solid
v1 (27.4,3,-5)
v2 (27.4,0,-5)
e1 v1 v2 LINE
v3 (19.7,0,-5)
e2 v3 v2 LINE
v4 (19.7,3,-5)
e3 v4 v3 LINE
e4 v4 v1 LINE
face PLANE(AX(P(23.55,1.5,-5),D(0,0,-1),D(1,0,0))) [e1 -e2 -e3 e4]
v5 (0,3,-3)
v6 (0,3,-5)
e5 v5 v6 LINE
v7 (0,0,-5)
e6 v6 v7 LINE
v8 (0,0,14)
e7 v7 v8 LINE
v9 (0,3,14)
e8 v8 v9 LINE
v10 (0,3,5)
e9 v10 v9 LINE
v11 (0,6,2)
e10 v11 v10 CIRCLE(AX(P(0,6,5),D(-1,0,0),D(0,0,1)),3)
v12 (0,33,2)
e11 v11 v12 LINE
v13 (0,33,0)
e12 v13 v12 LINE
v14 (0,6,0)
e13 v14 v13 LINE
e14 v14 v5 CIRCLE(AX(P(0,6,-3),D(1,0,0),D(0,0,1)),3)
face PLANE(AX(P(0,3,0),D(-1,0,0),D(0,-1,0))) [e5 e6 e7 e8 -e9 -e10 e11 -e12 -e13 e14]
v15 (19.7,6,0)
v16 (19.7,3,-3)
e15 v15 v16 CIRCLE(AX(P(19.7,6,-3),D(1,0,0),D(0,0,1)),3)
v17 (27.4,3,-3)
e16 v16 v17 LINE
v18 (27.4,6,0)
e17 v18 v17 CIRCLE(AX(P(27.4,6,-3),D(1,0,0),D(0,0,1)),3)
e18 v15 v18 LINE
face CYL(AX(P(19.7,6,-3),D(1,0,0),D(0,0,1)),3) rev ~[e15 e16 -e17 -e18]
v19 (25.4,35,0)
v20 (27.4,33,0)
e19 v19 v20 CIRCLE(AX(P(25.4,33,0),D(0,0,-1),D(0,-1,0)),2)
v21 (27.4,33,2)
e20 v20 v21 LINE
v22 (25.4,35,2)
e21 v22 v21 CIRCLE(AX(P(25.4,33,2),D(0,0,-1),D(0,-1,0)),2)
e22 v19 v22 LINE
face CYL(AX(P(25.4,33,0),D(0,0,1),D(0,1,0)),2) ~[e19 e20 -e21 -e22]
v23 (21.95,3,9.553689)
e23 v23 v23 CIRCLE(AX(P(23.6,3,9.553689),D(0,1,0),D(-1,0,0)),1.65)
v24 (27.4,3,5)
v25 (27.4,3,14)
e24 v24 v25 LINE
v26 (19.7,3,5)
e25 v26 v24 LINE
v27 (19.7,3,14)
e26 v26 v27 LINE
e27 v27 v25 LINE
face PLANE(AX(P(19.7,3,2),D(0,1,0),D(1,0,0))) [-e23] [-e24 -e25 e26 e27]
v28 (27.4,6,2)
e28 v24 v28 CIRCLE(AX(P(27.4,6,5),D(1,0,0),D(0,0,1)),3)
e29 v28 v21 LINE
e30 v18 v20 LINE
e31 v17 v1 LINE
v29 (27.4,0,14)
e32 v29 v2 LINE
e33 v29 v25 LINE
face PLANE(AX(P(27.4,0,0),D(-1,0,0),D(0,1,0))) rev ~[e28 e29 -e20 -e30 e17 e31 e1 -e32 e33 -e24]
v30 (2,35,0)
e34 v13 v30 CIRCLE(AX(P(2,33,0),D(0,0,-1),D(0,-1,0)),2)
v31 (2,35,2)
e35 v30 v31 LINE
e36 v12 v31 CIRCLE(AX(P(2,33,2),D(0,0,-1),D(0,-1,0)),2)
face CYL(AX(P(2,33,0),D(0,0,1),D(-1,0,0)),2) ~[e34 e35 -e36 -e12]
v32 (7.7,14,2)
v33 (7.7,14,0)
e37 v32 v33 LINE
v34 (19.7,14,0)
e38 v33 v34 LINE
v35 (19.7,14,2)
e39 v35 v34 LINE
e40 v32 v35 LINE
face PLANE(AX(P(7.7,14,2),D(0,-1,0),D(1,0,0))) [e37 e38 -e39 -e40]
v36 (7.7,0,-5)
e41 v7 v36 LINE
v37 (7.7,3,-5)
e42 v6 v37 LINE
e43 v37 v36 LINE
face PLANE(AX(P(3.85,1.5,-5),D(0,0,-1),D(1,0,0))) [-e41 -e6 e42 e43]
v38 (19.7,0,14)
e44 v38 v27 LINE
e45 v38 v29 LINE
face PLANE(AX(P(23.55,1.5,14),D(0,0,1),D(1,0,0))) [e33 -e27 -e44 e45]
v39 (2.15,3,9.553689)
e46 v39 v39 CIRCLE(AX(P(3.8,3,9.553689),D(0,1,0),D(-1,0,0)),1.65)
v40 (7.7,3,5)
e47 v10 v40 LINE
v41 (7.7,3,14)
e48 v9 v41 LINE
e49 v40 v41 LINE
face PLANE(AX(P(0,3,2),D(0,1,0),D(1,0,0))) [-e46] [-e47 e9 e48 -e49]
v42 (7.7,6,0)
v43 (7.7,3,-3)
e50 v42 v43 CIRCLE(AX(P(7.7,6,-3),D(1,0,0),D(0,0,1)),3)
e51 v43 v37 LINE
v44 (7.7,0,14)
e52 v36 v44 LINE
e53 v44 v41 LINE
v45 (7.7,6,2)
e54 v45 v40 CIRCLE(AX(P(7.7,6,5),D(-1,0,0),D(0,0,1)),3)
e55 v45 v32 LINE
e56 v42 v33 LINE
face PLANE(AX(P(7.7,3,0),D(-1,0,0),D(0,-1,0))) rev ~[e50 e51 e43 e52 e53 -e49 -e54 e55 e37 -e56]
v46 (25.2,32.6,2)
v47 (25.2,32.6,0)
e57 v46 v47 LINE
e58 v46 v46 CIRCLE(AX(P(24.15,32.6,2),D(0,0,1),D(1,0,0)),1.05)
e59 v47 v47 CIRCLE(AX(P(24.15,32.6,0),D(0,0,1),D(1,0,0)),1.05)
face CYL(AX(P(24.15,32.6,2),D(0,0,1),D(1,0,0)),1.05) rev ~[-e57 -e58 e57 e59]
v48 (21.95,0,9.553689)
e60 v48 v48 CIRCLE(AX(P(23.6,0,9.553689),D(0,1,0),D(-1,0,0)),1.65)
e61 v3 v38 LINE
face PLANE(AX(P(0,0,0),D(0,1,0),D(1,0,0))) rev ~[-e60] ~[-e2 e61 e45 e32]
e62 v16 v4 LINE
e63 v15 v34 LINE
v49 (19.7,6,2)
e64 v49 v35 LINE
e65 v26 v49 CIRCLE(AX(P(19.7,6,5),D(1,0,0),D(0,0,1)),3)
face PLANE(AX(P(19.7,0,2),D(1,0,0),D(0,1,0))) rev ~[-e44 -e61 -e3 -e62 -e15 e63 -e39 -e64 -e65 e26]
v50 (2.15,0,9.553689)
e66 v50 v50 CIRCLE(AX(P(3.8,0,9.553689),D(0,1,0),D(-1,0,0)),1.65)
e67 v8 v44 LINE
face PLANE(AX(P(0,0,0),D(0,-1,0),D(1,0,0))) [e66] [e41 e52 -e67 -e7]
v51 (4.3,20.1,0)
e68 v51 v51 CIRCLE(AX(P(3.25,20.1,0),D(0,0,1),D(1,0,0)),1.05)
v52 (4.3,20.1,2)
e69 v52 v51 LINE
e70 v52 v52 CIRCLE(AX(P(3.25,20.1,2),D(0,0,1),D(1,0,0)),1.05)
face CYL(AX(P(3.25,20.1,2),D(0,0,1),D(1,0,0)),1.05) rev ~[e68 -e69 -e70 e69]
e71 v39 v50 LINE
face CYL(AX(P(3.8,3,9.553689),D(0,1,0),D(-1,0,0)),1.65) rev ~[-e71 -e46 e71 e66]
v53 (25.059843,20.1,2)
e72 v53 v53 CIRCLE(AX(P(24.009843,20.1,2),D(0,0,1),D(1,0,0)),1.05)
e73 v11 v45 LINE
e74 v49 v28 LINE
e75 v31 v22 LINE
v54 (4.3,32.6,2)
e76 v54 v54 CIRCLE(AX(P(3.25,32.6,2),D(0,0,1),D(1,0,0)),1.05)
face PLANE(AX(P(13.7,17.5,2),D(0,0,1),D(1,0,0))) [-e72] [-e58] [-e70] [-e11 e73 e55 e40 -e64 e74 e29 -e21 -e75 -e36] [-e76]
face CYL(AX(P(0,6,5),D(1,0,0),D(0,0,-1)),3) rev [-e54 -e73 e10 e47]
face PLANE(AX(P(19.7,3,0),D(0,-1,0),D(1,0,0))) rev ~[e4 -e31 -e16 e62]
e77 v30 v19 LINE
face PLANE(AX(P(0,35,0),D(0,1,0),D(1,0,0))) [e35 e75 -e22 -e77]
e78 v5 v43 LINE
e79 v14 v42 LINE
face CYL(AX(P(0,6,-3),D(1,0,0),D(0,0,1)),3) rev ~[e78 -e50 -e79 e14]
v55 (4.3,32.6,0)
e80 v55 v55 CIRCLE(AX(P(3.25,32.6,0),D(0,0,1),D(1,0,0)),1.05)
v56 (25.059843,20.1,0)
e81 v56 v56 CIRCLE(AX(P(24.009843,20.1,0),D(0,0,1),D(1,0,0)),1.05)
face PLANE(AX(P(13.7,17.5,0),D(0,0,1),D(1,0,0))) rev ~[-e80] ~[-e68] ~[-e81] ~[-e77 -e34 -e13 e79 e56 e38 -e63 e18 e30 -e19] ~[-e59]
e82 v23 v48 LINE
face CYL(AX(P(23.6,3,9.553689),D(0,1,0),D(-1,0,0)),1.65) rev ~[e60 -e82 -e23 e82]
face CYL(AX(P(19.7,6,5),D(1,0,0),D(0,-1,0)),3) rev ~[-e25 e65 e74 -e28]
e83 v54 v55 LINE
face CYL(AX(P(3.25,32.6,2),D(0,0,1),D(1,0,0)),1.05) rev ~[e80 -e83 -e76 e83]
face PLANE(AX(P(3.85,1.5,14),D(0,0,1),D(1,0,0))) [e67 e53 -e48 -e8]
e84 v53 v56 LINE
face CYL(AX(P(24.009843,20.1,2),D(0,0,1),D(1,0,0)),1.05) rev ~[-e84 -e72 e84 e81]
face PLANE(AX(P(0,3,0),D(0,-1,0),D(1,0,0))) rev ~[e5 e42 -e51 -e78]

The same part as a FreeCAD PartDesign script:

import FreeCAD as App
import Part
import Sketcher


def edges_at(feature, points):
    """Names of the edges that pass closest to the given points."""
    edges = feature.Shape.Edges
    near = lambda p: min(range(len(edges)), key=lambda i: edges[i].distToShape(Part.Vertex(*p))[0])
    return sorted({f"Edge{near(p) + 1}" for p in points})

doc = App.newDocument("Part")
params = doc.addObject("Spreadsheet::Sheet", "Params")
for row, (alias, value) in enumerate([
    ("sketch1_height", "35 mm"),
    ("sketch1_width", "27.4 mm"),
    ("pad1_length", "2 mm"),
    ("sketch2_width", "12 mm"),
    ("sketch2_height", "14 mm"),
    ("pocket1_length", "2 mm"),
    ("sketch3_height", "3 mm"),
    ("sketch3_width", "7.7 mm"),
    ("pad2_length", "12 mm"),
    ("fillet_radius", "3 mm"),
    ("sketch4_height", "3 mm"),
    ("sketch4_width", "7.7 mm"),
    ("pad3_length", "5 mm"),
    ("fillet2_radius", "3 mm"),
    ("sketch5_diameter", "2.1 mm"),
    ("pocket2_length", "2 mm"),
    ("sketch6_diameter", "3.3 mm"),
    ("pocket3_length", "3 mm"),
    ("fillet3_radius", "2 mm"),
], start=1):
    params.set(f"A{row}", alias)
    params.set(f"B{row}", "=" + value)
    params.setAlias(f"B{row}", alias)

body = doc.addObject("PartDesign::Body", "Body")

# Sketch on XY plane
sketch1 = body.newObject("Sketcher::SketchObject", "Sketch")
sketch1.AttachmentSupport = (doc.getObject("XY_Plane"), [""])
sketch1.MapMode = "FlatFace"
sketch1.addGeometry(Part.LineSegment(App.Vector(0, 35, 0), App.Vector(0, 0, 0)), False)
sketch1.addGeometry(Part.LineSegment(App.Vector(0, 0, 0), App.Vector(27, 0, 0)), False)
sketch1.addGeometry(Part.LineSegment(App.Vector(27, 0, 0), App.Vector(27, 35, 0)), False)
sketch1.addGeometry(Part.LineSegment(App.Vector(27, 35, 0), App.Vector(0, 35, 0)), False)
sketch1.addConstraint(Sketcher.Constraint("Coincident", 0, 2, 1, 1))
sketch1.addConstraint(Sketcher.Constraint("Coincident", 1, 2, 2, 1))
sketch1.addConstraint(Sketcher.Constraint("Coincident", 2, 2, 3, 1))
sketch1.addConstraint(Sketcher.Constraint("Coincident", 3, 2, 0, 1))
sketch1.addConstraint(Sketcher.Constraint("Vertical", 0))
sketch1.addConstraint(Sketcher.Constraint("Horizontal", 1))
sketch1.addConstraint(Sketcher.Constraint("Vertical", 2))
sketch1.addConstraint(Sketcher.Constraint("Horizontal", 3))
sketch1.addConstraint(Sketcher.Constraint("Coincident", 0, 2, -1, 1))
sketch1.addConstraint(Sketcher.Constraint("DistanceY", 0, 2, 0, 1, 35.0))
sketch1.addConstraint(Sketcher.Constraint("DistanceX", 1, 1, 1, 2, 27.4))
sketch1.setExpression("Constraints[9]", "Params.sketch1_height")
sketch1.setExpression("Constraints[10]", "Params.sketch1_width")
pad1 = body.newObject("PartDesign::Pad", "Pad")
pad1.Profile = sketch1
pad1.setExpression("Length", "Params.pad1_length")

# Sketch on XY plane
sketch2 = body.newObject("Sketcher::SketchObject", "Sketch001")
sketch2.AttachmentSupport = (doc.getObject("XY_Plane"), [""])
sketch2.MapMode = "FlatFace"
sketch2.AttachmentOffset = App.Placement(App.Vector(0, 0, 2), App.Rotation())
sketch2.addGeometry(Part.LineSegment(App.Vector(8, 14, 0), App.Vector(8, 0, 0)), False)
sketch2.addGeometry(Part.LineSegment(App.Vector(8, 0, 0), App.Vector(20, 0, 0)), False)
sketch2.addGeometry(Part.LineSegment(App.Vector(20, 0, 0), App.Vector(20, 14, 0)), False)
sketch2.addGeometry(Part.LineSegment(App.Vector(20, 14, 0), App.Vector(8, 14, 0)), False)
sketch2.addConstraint(Sketcher.Constraint("Coincident", 0, 2, 1, 1))
sketch2.addConstraint(Sketcher.Constraint("Coincident", 1, 2, 2, 1))
sketch2.addConstraint(Sketcher.Constraint("Coincident", 2, 2, 3, 1))
sketch2.addConstraint(Sketcher.Constraint("Coincident", 3, 2, 0, 1))
sketch2.addConstraint(Sketcher.Constraint("Vertical", 0))
sketch2.addConstraint(Sketcher.Constraint("Horizontal", 1))
sketch2.addConstraint(Sketcher.Constraint("Vertical", 2))
sketch2.addConstraint(Sketcher.Constraint("Horizontal", 3))
sketch2.addConstraint(Sketcher.Constraint("PointOnObject", 0, 2, -1))
sketch2.addConstraint(Sketcher.Constraint("DistanceX", 1, 1, 1, 2, 12.0))
sketch2.addConstraint(Sketcher.Constraint("DistanceY", 0, 2, 0, 1, 14.0))
sketch2.addConstraint(Sketcher.Constraint("DistanceX", -1, 1, 0, 2, 7.7))
sketch2.setExpression("Constraints[9]", "Params.sketch2_width")
sketch2.setExpression("Constraints[10]", "Params.sketch2_height")
pocket1 = body.newObject("PartDesign::Pocket", "Pocket")
pocket1.Profile = sketch2
pocket1.setExpression("Length", "Params.pocket1_length")

# Sketch on XY plane
sketch3 = body.newObject("Sketcher::SketchObject", "Sketch002")
sketch3.AttachmentSupport = (doc.getObject("XY_Plane"), [""])
sketch3.MapMode = "FlatFace"
sketch3.AttachmentOffset = App.Placement(App.Vector(0, 0, 2), App.Rotation())
sketch3.addGeometry(Part.LineSegment(App.Vector(0, 3, 0), App.Vector(0, 0, 0)), False)
sketch3.addGeometry(Part.LineSegment(App.Vector(0, 0, 0), App.Vector(7.7, 0, 0)), False)
sketch3.addGeometry(Part.LineSegment(App.Vector(7.7, 0, 0), App.Vector(7.7, 3, 0)), False)
sketch3.addGeometry(Part.LineSegment(App.Vector(7.7, 3, 0), App.Vector(0, 3, 0)), False)
sketch3.addGeometry(Part.LineSegment(App.Vector(19.7, 3, 0), App.Vector(19.7, 0, 0)), False)
sketch3.addGeometry(Part.LineSegment(App.Vector(19.7, 0, 0), App.Vector(27.4, 0, 0)), False)
sketch3.addGeometry(Part.LineSegment(App.Vector(27.4, 0, 0), App.Vector(27.4, 3, 0)), False)
sketch3.addGeometry(Part.LineSegment(App.Vector(27.4, 3, 0), App.Vector(19.7, 3, 0)), False)
sketch3.addConstraint(Sketcher.Constraint("Coincident", 0, 2, 1, 1))
sketch3.addConstraint(Sketcher.Constraint("Coincident", 1, 2, 2, 1))
sketch3.addConstraint(Sketcher.Constraint("Coincident", 2, 2, 3, 1))
sketch3.addConstraint(Sketcher.Constraint("Coincident", 3, 2, 0, 1))
sketch3.addConstraint(Sketcher.Constraint("Coincident", 4, 2, 5, 1))
sketch3.addConstraint(Sketcher.Constraint("Coincident", 5, 2, 6, 1))
sketch3.addConstraint(Sketcher.Constraint("Coincident", 6, 2, 7, 1))
sketch3.addConstraint(Sketcher.Constraint("Coincident", 7, 2, 4, 1))
sketch3.addConstraint(Sketcher.Constraint("Vertical", 0))
sketch3.addConstraint(Sketcher.Constraint("Horizontal", 1))
sketch3.addConstraint(Sketcher.Constraint("Vertical", 2))
sketch3.addConstraint(Sketcher.Constraint("Horizontal", 3))
sketch3.addConstraint(Sketcher.Constraint("Vertical", 4))
sketch3.addConstraint(Sketcher.Constraint("Horizontal", 5))
sketch3.addConstraint(Sketcher.Constraint("Vertical", 6))
sketch3.addConstraint(Sketcher.Constraint("Horizontal", 7))
sketch3.addConstraint(Sketcher.Constraint("Coincident", 0, 2, -1, 1))
sketch3.addConstraint(Sketcher.Constraint("PointOnObject", 4, 2, -1))
sketch3.addConstraint(Sketcher.Constraint("Horizontal", 3, 2, 6, 2))
sketch3.addConstraint(Sketcher.Constraint("Equal", 3, 5))
sketch3.addConstraint(Sketcher.Constraint("DistanceY", 0, 2, 0, 1, 3.0))
sketch3.addConstraint(Sketcher.Constraint("DistanceX", 1, 1, 1, 2, 7.7))
sketch3.addConstraint(Sketcher.Constraint("DistanceX", 1, 2, 4, 2, 12.0))
sketch3.setExpression("Constraints[20]", "Params.sketch3_height")
sketch3.setExpression("Constraints[21]", "Params.sketch3_width")
pad2 = body.newObject("PartDesign::Pad", "Pad001")
pad2.Profile = sketch3
pad2.setExpression("Length", "Params.pad2_length")
doc.recompute()

fillet = body.newObject("PartDesign::Fillet", "Fillet")
fillet.Base = (pad2, edges_at(pad2, [(3.85, 3, 2), (23.55, 3, 2)]))
fillet.setExpression("Radius", "Params.fillet_radius")

# Sketch on XY plane
sketch4 = body.newObject("Sketcher::SketchObject", "Sketch003")
sketch4.AttachmentSupport = (doc.getObject("XY_Plane"), [""])
sketch4.MapMode = "FlatFace"
sketch4.addGeometry(Part.LineSegment(App.Vector(0, 0, 0), App.Vector(0, 3, 0)), False)
sketch4.addGeometry(Part.LineSegment(App.Vector(0, 3, 0), App.Vector(7.7, 3, 0)), False)
sketch4.addGeometry(Part.LineSegment(App.Vector(7.7, 3, 0), App.Vector(7.7, 0, 0)), False)
sketch4.addGeometry(Part.LineSegment(App.Vector(7.7, 0, 0), App.Vector(0, 0, 0)), False)
sketch4.addGeometry(Part.LineSegment(App.Vector(19.7, 0, 0), App.Vector(19.7, 3, 0)), False)
sketch4.addGeometry(Part.LineSegment(App.Vector(19.7, 3, 0), App.Vector(27.4, 3, 0)), False)
sketch4.addGeometry(Part.LineSegment(App.Vector(27.4, 3, 0), App.Vector(27.4, 0, 0)), False)
sketch4.addGeometry(Part.LineSegment(App.Vector(27.4, 0, 0), App.Vector(19.7, 0, 0)), False)
sketch4.addConstraint(Sketcher.Constraint("Coincident", 0, 2, 1, 1))
sketch4.addConstraint(Sketcher.Constraint("Coincident", 1, 2, 2, 1))
sketch4.addConstraint(Sketcher.Constraint("Coincident", 2, 2, 3, 1))
sketch4.addConstraint(Sketcher.Constraint("Coincident", 3, 2, 0, 1))
sketch4.addConstraint(Sketcher.Constraint("Coincident", 4, 2, 5, 1))
sketch4.addConstraint(Sketcher.Constraint("Coincident", 5, 2, 6, 1))
sketch4.addConstraint(Sketcher.Constraint("Coincident", 6, 2, 7, 1))
sketch4.addConstraint(Sketcher.Constraint("Coincident", 7, 2, 4, 1))
sketch4.addConstraint(Sketcher.Constraint("Vertical", 0))
sketch4.addConstraint(Sketcher.Constraint("Horizontal", 1))
sketch4.addConstraint(Sketcher.Constraint("Vertical", 2))
sketch4.addConstraint(Sketcher.Constraint("Horizontal", 3))
sketch4.addConstraint(Sketcher.Constraint("Vertical", 4))
sketch4.addConstraint(Sketcher.Constraint("Horizontal", 5))
sketch4.addConstraint(Sketcher.Constraint("Vertical", 6))
sketch4.addConstraint(Sketcher.Constraint("Horizontal", 7))
sketch4.addConstraint(Sketcher.Constraint("Coincident", 3, 2, -1, 1))
sketch4.addConstraint(Sketcher.Constraint("PointOnObject", 6, 2, -1))
sketch4.addConstraint(Sketcher.Constraint("Horizontal", 1, 2, 4, 2))
sketch4.addConstraint(Sketcher.Constraint("Equal", 3, 5))
sketch4.addConstraint(Sketcher.Constraint("DistanceY", 0, 1, 0, 2, 3.0))
sketch4.addConstraint(Sketcher.Constraint("DistanceX", 1, 1, 1, 2, 7.7))
sketch4.addConstraint(Sketcher.Constraint("DistanceX", 1, 2, 4, 2, 12.0))
sketch4.setExpression("Constraints[20]", "Params.sketch4_height")
sketch4.setExpression("Constraints[21]", "Params.sketch4_width")
pad3 = body.newObject("PartDesign::Pad", "Pad002")
pad3.Profile = sketch4
pad3.setExpression("Length", "Params.pad3_length")
pad3.Reversed = True
doc.recompute()

fillet2 = body.newObject("PartDesign::Fillet", "Fillet001")
fillet2.Base = (pad3, edges_at(pad3, [(3.85, 3, 0), (23.55, 3, 0)]))
fillet2.setExpression("Radius", "Params.fillet2_radius")

# Sketch on XY plane
sketch5 = body.newObject("Sketcher::SketchObject", "Sketch004")
sketch5.AttachmentSupport = (doc.getObject("XY_Plane"), [""])
sketch5.MapMode = "FlatFace"
sketch5.AttachmentOffset = App.Placement(App.Vector(0, 0, 2), App.Rotation())
sketch5.addGeometry(Part.Circle(App.Vector(3.2, 32.6, 0), App.Vector(0, 0, 1), 1.1), False)
sketch5.addGeometry(Part.Circle(App.Vector(3.2, 20.1, 0), App.Vector(0, 0, 1), 1.1), False)
sketch5.addGeometry(Part.Circle(App.Vector(24.1, 32.6, 0), App.Vector(0, 0, 1), 1.1), False)
sketch5.addGeometry(Part.Circle(App.Vector(24, 20.1, 0), App.Vector(0, 0, 1), 1.1), False)
sketch5.addConstraint(Sketcher.Constraint("Equal", 0, 1))
sketch5.addConstraint(Sketcher.Constraint("Equal", 1, 2))
sketch5.addConstraint(Sketcher.Constraint("Equal", 2, 3))
sketch5.addConstraint(Sketcher.Constraint("Horizontal", 0, 3, 2, 3))
sketch5.addConstraint(Sketcher.Constraint("Horizontal", 1, 3, 3, 3))
sketch5.addConstraint(Sketcher.Constraint("Vertical", 0, 3, 1, 3))
sketch5.addConstraint(Sketcher.Constraint("Diameter", 0, 2.1))
sketch5.addConstraint(Sketcher.Constraint("DistanceY", -1, 1, 0, 3, 32.6))
sketch5.addConstraint(Sketcher.Constraint("DistanceY", -1, 1, 1, 3, 20.1))
sketch5.addConstraint(Sketcher.Constraint("DistanceX", 0, 3, 2, 3, 20.9))
sketch5.addConstraint(Sketcher.Constraint("DistanceX", -1, 1, 0, 3, 3.25))
sketch5.addConstraint(Sketcher.Constraint("DistanceX", -1, 1, 3, 3, 24.009843))
sketch5.setExpression("Constraints[6]", "Params.sketch5_diameter")
pocket2 = body.newObject("PartDesign::Pocket", "Pocket001")
pocket2.Profile = sketch5
pocket2.setExpression("Length", "Params.pocket2_length")

# Sketch on XZ plane
sketch6 = body.newObject("Sketcher::SketchObject", "Sketch005")
sketch6.AttachmentSupport = (doc.getObject("XZ_Plane"), [""])
sketch6.MapMode = "FlatFace"
sketch6.AttachmentOffset = App.Placement(App.Vector(0, 0, -3), App.Rotation())
sketch6.addGeometry(Part.Circle(App.Vector(3.8, 9.6, 0), App.Vector(0, 0, 1), 1.6), False)
sketch6.addGeometry(Part.Circle(App.Vector(23.6, 9.6, 0), App.Vector(0, 0, 1), 1.6), False)
sketch6.addConstraint(Sketcher.Constraint("Equal", 0, 1))
sketch6.addConstraint(Sketcher.Constraint("Horizontal", 0, 3, 1, 3))
sketch6.addConstraint(Sketcher.Constraint("Diameter", 0, 3.3))
sketch6.addConstraint(Sketcher.Constraint("DistanceX", -1, 1, 0, 3, 3.8))
sketch6.addConstraint(Sketcher.Constraint("DistanceX", -1, 1, 1, 3, 23.6))
sketch6.addConstraint(Sketcher.Constraint("DistanceY", -1, 1, 0, 3, 9.553689))
sketch6.setExpression("Constraints[2]", "Params.sketch6_diameter")
pocket3 = body.newObject("PartDesign::Pocket", "Pocket002")
pocket3.Profile = sketch6
pocket3.setExpression("Length", "Params.pocket3_length")
pocket3.Reversed = True
doc.recompute()

fillet3 = body.newObject("PartDesign::Fillet", "Fillet002")
fillet3.Base = (pocket3, edges_at(pocket3, [(0, 35, 1), (27.4, 35, 1)]))
fillet3.setExpression("Radius", "Params.fillet3_radius")

doc.recompute()
